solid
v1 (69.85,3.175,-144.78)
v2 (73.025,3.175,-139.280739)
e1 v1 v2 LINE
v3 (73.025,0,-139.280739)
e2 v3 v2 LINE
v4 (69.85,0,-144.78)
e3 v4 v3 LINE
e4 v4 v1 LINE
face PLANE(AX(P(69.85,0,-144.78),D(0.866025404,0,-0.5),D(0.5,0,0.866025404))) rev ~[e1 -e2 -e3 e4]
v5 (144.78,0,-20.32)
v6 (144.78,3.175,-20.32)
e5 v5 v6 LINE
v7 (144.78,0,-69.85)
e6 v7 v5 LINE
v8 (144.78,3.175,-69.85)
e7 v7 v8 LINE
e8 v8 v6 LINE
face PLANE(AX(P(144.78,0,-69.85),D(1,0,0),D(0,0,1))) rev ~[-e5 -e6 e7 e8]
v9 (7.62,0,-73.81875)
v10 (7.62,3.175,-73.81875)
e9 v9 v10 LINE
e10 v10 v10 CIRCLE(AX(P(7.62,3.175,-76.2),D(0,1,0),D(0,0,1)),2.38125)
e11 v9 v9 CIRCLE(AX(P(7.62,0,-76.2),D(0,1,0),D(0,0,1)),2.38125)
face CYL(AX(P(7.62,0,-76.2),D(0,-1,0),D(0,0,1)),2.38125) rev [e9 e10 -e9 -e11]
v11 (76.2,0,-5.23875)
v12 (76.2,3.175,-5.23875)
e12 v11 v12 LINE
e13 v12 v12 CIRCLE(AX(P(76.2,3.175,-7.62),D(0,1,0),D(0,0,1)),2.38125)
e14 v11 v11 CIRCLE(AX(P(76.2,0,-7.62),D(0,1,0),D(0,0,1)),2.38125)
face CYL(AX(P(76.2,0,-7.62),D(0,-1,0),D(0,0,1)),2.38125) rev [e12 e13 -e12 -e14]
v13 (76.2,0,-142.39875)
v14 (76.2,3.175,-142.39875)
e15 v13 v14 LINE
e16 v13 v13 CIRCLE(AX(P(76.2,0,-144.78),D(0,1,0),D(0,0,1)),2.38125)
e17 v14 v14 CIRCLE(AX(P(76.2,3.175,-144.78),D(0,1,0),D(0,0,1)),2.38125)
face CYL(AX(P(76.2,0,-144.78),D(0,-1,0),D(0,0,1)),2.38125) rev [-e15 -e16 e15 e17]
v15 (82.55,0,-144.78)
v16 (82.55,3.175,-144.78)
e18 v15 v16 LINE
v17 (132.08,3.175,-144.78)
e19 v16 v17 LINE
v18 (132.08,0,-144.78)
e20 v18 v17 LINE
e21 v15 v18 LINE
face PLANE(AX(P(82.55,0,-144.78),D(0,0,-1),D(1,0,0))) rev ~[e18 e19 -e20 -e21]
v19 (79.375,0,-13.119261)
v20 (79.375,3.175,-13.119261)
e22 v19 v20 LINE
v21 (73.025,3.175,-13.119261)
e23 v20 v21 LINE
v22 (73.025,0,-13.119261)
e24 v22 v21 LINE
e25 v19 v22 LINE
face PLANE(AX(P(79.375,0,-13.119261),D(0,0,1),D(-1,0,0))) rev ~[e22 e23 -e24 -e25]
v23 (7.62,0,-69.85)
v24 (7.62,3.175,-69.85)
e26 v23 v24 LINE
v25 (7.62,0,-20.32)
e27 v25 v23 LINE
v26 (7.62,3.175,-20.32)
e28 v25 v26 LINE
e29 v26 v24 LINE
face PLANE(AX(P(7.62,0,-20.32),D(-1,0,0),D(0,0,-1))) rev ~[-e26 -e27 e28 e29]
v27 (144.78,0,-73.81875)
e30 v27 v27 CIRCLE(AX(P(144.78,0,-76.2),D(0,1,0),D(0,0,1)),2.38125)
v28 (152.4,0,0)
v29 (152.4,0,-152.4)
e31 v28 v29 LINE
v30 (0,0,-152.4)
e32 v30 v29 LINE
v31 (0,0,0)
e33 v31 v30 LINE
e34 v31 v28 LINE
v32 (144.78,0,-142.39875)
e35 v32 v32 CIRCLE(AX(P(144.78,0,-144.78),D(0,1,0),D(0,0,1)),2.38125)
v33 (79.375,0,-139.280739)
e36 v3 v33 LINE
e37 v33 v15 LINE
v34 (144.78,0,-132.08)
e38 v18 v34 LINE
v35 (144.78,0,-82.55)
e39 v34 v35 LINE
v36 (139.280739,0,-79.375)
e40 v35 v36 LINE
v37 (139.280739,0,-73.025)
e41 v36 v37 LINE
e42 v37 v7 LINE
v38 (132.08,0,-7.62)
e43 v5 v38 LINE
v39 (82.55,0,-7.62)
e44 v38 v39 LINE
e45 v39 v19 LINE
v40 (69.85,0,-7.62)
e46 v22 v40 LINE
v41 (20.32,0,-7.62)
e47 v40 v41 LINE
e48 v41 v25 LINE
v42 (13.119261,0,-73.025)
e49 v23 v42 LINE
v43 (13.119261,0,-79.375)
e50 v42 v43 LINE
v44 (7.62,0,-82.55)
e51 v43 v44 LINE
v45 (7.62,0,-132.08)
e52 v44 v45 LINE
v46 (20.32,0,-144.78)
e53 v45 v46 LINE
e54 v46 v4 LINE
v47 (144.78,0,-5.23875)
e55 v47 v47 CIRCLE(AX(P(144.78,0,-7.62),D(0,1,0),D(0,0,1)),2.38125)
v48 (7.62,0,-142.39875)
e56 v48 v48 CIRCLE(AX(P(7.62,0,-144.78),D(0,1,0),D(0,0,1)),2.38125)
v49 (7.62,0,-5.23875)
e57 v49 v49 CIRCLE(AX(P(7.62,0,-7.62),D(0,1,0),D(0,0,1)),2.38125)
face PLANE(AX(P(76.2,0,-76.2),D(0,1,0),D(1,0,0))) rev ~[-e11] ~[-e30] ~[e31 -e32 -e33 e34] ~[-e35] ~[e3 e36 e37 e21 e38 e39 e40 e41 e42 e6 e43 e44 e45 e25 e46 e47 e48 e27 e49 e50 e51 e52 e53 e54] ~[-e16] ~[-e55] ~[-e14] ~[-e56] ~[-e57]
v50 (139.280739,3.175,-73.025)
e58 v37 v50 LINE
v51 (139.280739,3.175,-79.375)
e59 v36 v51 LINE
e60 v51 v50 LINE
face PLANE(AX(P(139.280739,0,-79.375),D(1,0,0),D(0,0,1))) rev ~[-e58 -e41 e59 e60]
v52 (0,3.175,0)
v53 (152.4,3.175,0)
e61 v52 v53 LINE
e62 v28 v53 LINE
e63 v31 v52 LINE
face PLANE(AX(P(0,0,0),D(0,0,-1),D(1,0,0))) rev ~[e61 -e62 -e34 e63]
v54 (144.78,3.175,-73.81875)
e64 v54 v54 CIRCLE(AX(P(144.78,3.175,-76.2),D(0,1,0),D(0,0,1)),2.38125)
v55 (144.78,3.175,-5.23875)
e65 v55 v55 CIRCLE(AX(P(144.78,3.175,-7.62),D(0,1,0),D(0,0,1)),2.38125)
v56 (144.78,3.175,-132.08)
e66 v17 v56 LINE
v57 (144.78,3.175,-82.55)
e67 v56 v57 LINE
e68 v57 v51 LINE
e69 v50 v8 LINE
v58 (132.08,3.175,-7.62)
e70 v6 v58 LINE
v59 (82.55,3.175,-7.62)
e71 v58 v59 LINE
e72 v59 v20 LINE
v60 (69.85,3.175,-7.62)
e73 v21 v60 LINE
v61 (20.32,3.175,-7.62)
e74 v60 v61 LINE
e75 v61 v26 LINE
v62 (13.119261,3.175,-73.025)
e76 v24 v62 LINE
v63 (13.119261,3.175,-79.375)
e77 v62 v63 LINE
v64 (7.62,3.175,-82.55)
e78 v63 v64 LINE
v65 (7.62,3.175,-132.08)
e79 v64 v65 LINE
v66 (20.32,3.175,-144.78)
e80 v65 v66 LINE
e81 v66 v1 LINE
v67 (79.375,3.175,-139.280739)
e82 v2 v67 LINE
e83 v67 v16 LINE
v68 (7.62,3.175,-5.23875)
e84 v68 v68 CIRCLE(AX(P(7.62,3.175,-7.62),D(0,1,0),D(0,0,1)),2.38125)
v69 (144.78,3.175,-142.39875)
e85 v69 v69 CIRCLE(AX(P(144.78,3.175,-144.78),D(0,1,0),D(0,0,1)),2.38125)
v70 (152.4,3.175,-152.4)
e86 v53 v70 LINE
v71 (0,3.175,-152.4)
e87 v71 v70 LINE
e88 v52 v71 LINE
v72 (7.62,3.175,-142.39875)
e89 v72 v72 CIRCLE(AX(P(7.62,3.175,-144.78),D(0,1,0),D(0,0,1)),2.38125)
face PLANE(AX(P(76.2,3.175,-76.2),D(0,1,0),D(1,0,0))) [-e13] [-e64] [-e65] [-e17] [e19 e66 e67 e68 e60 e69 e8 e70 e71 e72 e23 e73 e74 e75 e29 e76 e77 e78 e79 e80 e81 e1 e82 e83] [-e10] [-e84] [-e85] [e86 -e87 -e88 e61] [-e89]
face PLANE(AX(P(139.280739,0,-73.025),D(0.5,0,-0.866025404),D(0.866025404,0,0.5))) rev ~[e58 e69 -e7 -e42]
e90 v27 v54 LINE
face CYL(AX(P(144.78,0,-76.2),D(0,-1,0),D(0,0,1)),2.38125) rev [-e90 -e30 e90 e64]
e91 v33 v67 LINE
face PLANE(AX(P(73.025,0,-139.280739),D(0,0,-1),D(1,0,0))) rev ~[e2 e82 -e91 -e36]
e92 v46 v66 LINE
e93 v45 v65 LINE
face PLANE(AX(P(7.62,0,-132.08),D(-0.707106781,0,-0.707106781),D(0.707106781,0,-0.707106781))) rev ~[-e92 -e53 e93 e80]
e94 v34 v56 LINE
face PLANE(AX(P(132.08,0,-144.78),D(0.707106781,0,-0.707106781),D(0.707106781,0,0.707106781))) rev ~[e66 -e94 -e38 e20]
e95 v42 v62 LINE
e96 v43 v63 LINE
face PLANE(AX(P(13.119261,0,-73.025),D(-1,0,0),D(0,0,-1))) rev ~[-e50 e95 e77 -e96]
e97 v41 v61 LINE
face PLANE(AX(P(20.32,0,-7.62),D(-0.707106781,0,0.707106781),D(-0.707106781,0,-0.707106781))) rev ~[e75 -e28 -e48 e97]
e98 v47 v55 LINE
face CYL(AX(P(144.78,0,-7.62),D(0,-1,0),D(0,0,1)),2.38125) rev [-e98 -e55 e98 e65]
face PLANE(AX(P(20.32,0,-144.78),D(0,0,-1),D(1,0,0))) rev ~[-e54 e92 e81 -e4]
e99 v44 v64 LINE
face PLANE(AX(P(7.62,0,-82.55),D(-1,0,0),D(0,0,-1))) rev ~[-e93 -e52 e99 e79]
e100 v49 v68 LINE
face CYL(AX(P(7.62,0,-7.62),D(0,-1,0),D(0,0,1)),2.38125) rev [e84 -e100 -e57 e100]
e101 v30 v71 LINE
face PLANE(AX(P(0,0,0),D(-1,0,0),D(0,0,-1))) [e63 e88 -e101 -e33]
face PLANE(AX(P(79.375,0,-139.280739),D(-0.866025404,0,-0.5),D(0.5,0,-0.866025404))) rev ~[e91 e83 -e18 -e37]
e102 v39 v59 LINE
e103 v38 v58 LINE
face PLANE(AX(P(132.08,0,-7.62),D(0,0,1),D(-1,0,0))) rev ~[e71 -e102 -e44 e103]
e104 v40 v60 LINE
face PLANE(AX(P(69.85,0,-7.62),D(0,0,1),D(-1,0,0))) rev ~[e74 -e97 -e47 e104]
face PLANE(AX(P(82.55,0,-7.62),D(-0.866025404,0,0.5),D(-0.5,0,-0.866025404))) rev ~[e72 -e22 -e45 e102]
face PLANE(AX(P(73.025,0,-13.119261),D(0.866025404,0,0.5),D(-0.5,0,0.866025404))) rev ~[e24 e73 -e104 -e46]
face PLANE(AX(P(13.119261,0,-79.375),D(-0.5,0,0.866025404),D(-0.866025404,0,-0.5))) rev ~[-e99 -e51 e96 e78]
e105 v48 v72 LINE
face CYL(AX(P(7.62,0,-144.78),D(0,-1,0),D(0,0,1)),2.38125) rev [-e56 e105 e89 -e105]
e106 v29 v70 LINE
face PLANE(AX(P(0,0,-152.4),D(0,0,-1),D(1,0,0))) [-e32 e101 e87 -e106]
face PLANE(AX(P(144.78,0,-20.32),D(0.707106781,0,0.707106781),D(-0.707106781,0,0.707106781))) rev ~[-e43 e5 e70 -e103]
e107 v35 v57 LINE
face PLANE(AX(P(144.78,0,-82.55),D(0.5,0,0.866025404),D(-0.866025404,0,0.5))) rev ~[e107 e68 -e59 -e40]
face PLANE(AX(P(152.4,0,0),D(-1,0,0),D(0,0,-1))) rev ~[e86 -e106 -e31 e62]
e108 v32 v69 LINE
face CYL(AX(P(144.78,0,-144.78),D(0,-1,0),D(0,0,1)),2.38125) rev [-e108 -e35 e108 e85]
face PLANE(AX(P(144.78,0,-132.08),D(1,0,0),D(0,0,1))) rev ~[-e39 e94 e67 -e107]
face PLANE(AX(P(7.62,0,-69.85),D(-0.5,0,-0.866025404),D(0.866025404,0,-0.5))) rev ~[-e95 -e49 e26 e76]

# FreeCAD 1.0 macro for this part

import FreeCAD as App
import Part
import Sketcher
from FreeCAD import Vector
Q = App.Units.Quantity

doc = App.newDocument("Part")
body = doc.addObject("PartDesign::Body", "Body")

# Sketch on XZ plane
sketch1 = doc.addObject("Sketcher::SketchObject", "Sketch")
body.addObject(sketch1)
sketch1.AttachmentSupport = (doc.XZ_Plane, [""])
sketch1.MapMode = "FlatFace"
sketch1.addGeometry(Part.LineSegment(Vector(0, -152.4, 0), Vector(0, 0, 0)), False)
sketch1.addGeometry(Part.LineSegment(Vector(0, 0, 0), Vector(152.4, 0, 0)), False)
sketch1.addGeometry(Part.LineSegment(Vector(152.4, 0, 0), Vector(152.4, -152.4, 0)), False)
sketch1.addGeometry(Part.LineSegment(Vector(152.4, -152.4, 0), Vector(0, -152.4, 0)), False)
sketch1.addGeometry(Part.Circle(Vector(7.6, -7.6, 0), Vector(0, 0, 1), 2.4), False)
sketch1.addGeometry(Part.Circle(Vector(76.2, -7.6, 0), Vector(0, 0, 1), 2.4), False)
sketch1.addGeometry(Part.Circle(Vector(144.8, -7.6, 0), Vector(0, 0, 1), 2.4), False)
sketch1.addGeometry(Part.Circle(Vector(7.6, -76.2, 0), Vector(0, 0, 1), 2.4), False)
sketch1.addGeometry(Part.Circle(Vector(7.6, -144.8, 0), Vector(0, 0, 1), 2.4), False)
sketch1.addGeometry(Part.LineSegment(Vector(73, -13.1, 0), Vector(69.8, -7.6, 0)), False)
sketch1.addGeometry(Part.LineSegment(Vector(69.8, -7.6, 0), Vector(20.3, -7.6, 0)), False)
sketch1.addGeometry(Part.LineSegment(Vector(20.3, -7.6, 0), Vector(7.6, -20.3, 0)), False)
sketch1.addGeometry(Part.LineSegment(Vector(7.6, -20.3, 0), Vector(7.6, -69.8, 0)), False)
sketch1.addGeometry(Part.LineSegment(Vector(7.6, -69.8, 0), Vector(13.1, -73, 0)), False)
sketch1.addGeometry(Part.LineSegment(Vector(13.1, -73, 0), Vector(13.1, -79.4, 0)), False)
sketch1.addGeometry(Part.LineSegment(Vector(13.1, -79.4, 0), Vector(7.6, -82.5, 0)), False)
sketch1.addGeometry(Part.LineSegment(Vector(7.6, -82.5, 0), Vector(7.6, -132.1, 0)), False)
sketch1.addGeometry(Part.LineSegment(Vector(7.6, -132.1, 0), Vector(20.3, -144.8, 0)), False)
sketch1.addGeometry(Part.LineSegment(Vector(20.3, -144.8, 0), Vector(69.8, -144.8, 0)), False)
sketch1.addGeometry(Part.LineSegment(Vector(69.8, -144.8, 0), Vector(73, -139.3, 0)), False)
sketch1.addGeometry(Part.LineSegment(Vector(73, -139.3, 0), Vector(79.4, -139.3, 0)), False)
sketch1.addGeometry(Part.LineSegment(Vector(79.4, -139.3, 0), Vector(82.5, -144.8, 0)), False)
sketch1.addGeometry(Part.LineSegment(Vector(82.5, -144.8, 0), Vector(132.1, -144.8, 0)), False)
sketch1.addGeometry(Part.LineSegment(Vector(132.1, -144.8, 0), Vector(144.8, -132.1, 0)), False)
sketch1.addGeometry(Part.LineSegment(Vector(144.8, -132.1, 0), Vector(144.8, -82.5, 0)), False)
sketch1.addGeometry(Part.LineSegment(Vector(144.8, -82.5, 0), Vector(139.3, -79.4, 0)), False)
sketch1.addGeometry(Part.LineSegment(Vector(139.3, -79.4, 0), Vector(139.3, -73, 0)), False)
sketch1.addGeometry(Part.LineSegment(Vector(139.3, -73, 0), Vector(144.8, -69.8, 0)), False)
sketch1.addGeometry(Part.LineSegment(Vector(144.8, -69.8, 0), Vector(144.8, -20.3, 0)), False)
sketch1.addGeometry(Part.LineSegment(Vector(144.8, -20.3, 0), Vector(132.1, -7.6, 0)), False)
sketch1.addGeometry(Part.LineSegment(Vector(132.1, -7.6, 0), Vector(82.5, -7.6, 0)), False)
sketch1.addGeometry(Part.LineSegment(Vector(82.5, -7.6, 0), Vector(79.4, -13.1, 0)), False)
sketch1.addGeometry(Part.LineSegment(Vector(79.4, -13.1, 0), Vector(73, -13.1, 0)), False)
sketch1.addGeometry(Part.Circle(Vector(144.8, -76.2, 0), Vector(0, 0, 1), 2.4), False)
sketch1.addGeometry(Part.Circle(Vector(76.2, -144.8, 0), Vector(0, 0, 1), 2.4), False)
sketch1.addGeometry(Part.Circle(Vector(144.8, -144.8, 0), Vector(0, 0, 1), 2.4), False)
sketch1.addConstraint(Sketcher.Constraint("Coincident", 0, 2, 1, 1))
sketch1.addConstraint(Sketcher.Constraint("Coincident", 1, 2, 2, 1))
sketch1.addConstraint(Sketcher.Constraint("Coincident", 2, 2, 3, 1))
sketch1.addConstraint(Sketcher.Constraint("Coincident", 3, 2, 0, 1))
sketch1.addConstraint(Sketcher.Constraint("Coincident", 9, 2, 10, 1))
sketch1.addConstraint(Sketcher.Constraint("Coincident", 10, 2, 11, 1))
sketch1.addConstraint(Sketcher.Constraint("Coincident", 11, 2, 12, 1))
sketch1.addConstraint(Sketcher.Constraint("Coincident", 12, 2, 13, 1))
sketch1.addConstraint(Sketcher.Constraint("Coincident", 13, 2, 14, 1))
sketch1.addConstraint(Sketcher.Constraint("Coincident", 14, 2, 15, 1))
sketch1.addConstraint(Sketcher.Constraint("Coincident", 15, 2, 16, 1))
sketch1.addConstraint(Sketcher.Constraint("Coincident", 16, 2, 17, 1))
sketch1.addConstraint(Sketcher.Constraint("Coincident", 17, 2, 18, 1))
sketch1.addConstraint(Sketcher.Constraint("Coincident", 18, 2, 19, 1))
sketch1.addConstraint(Sketcher.Constraint("Coincident", 19, 2, 20, 1))
sketch1.addConstraint(Sketcher.Constraint("Coincident", 20, 2, 21, 1))
sketch1.addConstraint(Sketcher.Constraint("Coincident", 21, 2, 22, 1))
sketch1.addConstraint(Sketcher.Constraint("Coincident", 22, 2, 23, 1))
sketch1.addConstraint(Sketcher.Constraint("Coincident", 23, 2, 24, 1))
sketch1.addConstraint(Sketcher.Constraint("Coincident", 24, 2, 25, 1))
sketch1.addConstraint(Sketcher.Constraint("Coincident", 25, 2, 26, 1))
sketch1.addConstraint(Sketcher.Constraint("Coincident", 26, 2, 27, 1))
sketch1.addConstraint(Sketcher.Constraint("Coincident", 27, 2, 28, 1))
sketch1.addConstraint(Sketcher.Constraint("Coincident", 28, 2, 29, 1))
sketch1.addConstraint(Sketcher.Constraint("Coincident", 29, 2, 30, 1))
sketch1.addConstraint(Sketcher.Constraint("Coincident", 30, 2, 31, 1))
sketch1.addConstraint(Sketcher.Constraint("Coincident", 31, 2, 32, 1))
sketch1.addConstraint(Sketcher.Constraint("Coincident", 32, 2, 9, 1))
sketch1.addConstraint(Sketcher.Constraint("Vertical", 0))
sketch1.addConstraint(Sketcher.Constraint("Horizontal", 1))
sketch1.addConstraint(Sketcher.Constraint("Vertical", 2))
sketch1.addConstraint(Sketcher.Constraint("Horizontal", 3))
sketch1.addConstraint(Sketcher.Constraint("Horizontal", 10))
sketch1.addConstraint(Sketcher.Constraint("Vertical", 12))
sketch1.addConstraint(Sketcher.Constraint("Vertical", 14))
sketch1.addConstraint(Sketcher.Constraint("Vertical", 16))
sketch1.addConstraint(Sketcher.Constraint("Horizontal", 18))
sketch1.addConstraint(Sketcher.Constraint("Horizontal", 20))
sketch1.addConstraint(Sketcher.Constraint("Horizontal", 22))
sketch1.addConstraint(Sketcher.Constraint("Vertical", 24))
sketch1.addConstraint(Sketcher.Constraint("Vertical", 26))
sketch1.addConstraint(Sketcher.Constraint("Vertical", 28))
sketch1.addConstraint(Sketcher.Constraint("Horizontal", 30))
sketch1.addConstraint(Sketcher.Constraint("Horizontal", 32))
sketch1.addConstraint(Sketcher.Constraint("Coincident", 0, 2, -1, 1))
sketch1.addConstraint(Sketcher.Constraint("Equal", 4, 5))
sketch1.addConstraint(Sketcher.Constraint("Equal", 5, 6))
sketch1.addConstraint(Sketcher.Constraint("Equal", 6, 7))
sketch1.addConstraint(Sketcher.Constraint("Equal", 7, 8))
sketch1.addConstraint(Sketcher.Constraint("Equal", 8, 33))
sketch1.addConstraint(Sketcher.Constraint("Equal", 33, 34))
sketch1.addConstraint(Sketcher.Constraint("Equal", 34, 35))
sketch1.addConstraint(Sketcher.Constraint("Perpendicular", 9, 15))
sketch1.addConstraint(Sketcher.Constraint("Perpendicular", 11, 17))
sketch1.addConstraint(Sketcher.Constraint("Perpendicular", 13, 19))
sketch1.addConstraint(Sketcher.Constraint("Perpendicular", 15, 21))
sketch1.addConstraint(Sketcher.Constraint("Perpendicular", 17, 23))
sketch1.addConstraint(Sketcher.Constraint("Perpendicular", 19, 25))
sketch1.addConstraint(Sketcher.Constraint("Perpendicular", 21, 27))
sketch1.addConstraint(Sketcher.Constraint("Perpendicular", 23, 29))
sketch1.addConstraint(Sketcher.Constraint("Perpendicular", 25, 31))
sketch1.addConstraint(Sketcher.Constraint("Horizontal", 4, 3, 5, 3))
sketch1.addConstraint(Sketcher.Constraint("Horizontal", 5, 3, 6, 3))
sketch1.addConstraint(Sketcher.Constraint("Horizontal", 7, 3, 33, 3))
sketch1.addConstraint(Sketcher.Constraint("Horizontal", 8, 3, 34, 3))
sketch1.addConstraint(Sketcher.Constraint("Horizontal", 34, 3, 35, 3))
sketch1.addConstraint(Sketcher.Constraint("Horizontal", 6, 3, 9, 2))
sketch1.addConstraint(Sketcher.Constraint("Horizontal", 35, 3, 17, 2))
sketch1.addConstraint(Sketcher.Constraint("Horizontal", 18, 2, 21, 2))
sketch1.addConstraint(Sketcher.Constraint("Horizontal", 16, 2, 23, 2))
sketch1.addConstraint(Sketcher.Constraint("Horizontal", 15, 2, 24, 2))
sketch1.addConstraint(Sketcher.Constraint("Horizontal", 14, 2, 25, 2))
sketch1.addConstraint(Sketcher.Constraint("Horizontal", 13, 2, 26, 2))
sketch1.addConstraint(Sketcher.Constraint("Horizontal", 12, 2, 27, 2))
sketch1.addConstraint(Sketcher.Constraint("Horizontal", 11, 2, 28, 2))
sketch1.addConstraint(Sketcher.Constraint("Horizontal", 10, 2, 29, 2))
sketch1.addConstraint(Sketcher.Constraint("Vertical", 4, 3, 7, 3))
sketch1.addConstraint(Sketcher.Constraint("Vertical", 7, 3, 8, 3))
sketch1.addConstraint(Sketcher.Constraint("Vertical", 6, 3, 33, 3))
sketch1.addConstraint(Sketcher.Constraint("Vertical", 5, 3, 34, 3))
sketch1.addConstraint(Sketcher.Constraint("Vertical", 33, 3, 35, 3))
sketch1.addConstraint(Sketcher.Constraint("Vertical", 8, 3, 11, 2))
sketch1.addConstraint(Sketcher.Constraint("Vertical", 12, 2, 15, 2))
sketch1.addConstraint(Sketcher.Constraint("Vertical", 10, 2, 17, 2))
sketch1.addConstraint(Sketcher.Constraint("Vertical", 9, 2, 18, 2))
sketch1.addConstraint(Sketcher.Constraint("Vertical", 35, 3, 23, 2))
sketch1.addConstraint(Sketcher.Constraint("Vertical", 24, 2, 27, 2))
sketch1.addConstraint(Sketcher.Constraint("Vertical", 22, 2, 29, 2))
sketch1.addConstraint(Sketcher.Constraint("Vertical", 21, 2, 30, 2))
sketch1.addConstraint(Sketcher.Constraint("Vertical", 20, 2, 31, 2))
sketch1.addConstraint(Sketcher.Constraint("Equal", 18, 22))
sketch1.addConstraint(Sketcher.Constraint("Equal", 3, 0))
sketch1.addConstraint(Sketcher.Constraint("Equal", 30, 12))
sketch1.addConstraint(Sketcher.Constraint("Equal", 32, 14))
sketch1.addConstraint(Sketcher.Constraint("Equal", 12, 16))
sketch1.addConstraint(Sketcher.Constraint("Equal", 9, 13))
sketch1.addConstraint(Sketcher.Constraint("DistanceX", 1, 1, 1, 2, Q("6 in")))
sketch1.addConstraint(Sketcher.Constraint("Diameter", 4, Q("0.1875 in")))
sketch1.addConstraint(Sketcher.Constraint("DistanceX", -1, 1, 5, 3, Q("3 in")))
sketch1.addConstraint(Sketcher.Constraint("DistanceY", 7, 3, -1, 1, Q("3 in")))
sketch1.addConstraint(Sketcher.Constraint("Angle", 9, Q("120 deg")))
sketch1.addConstraint(Sketcher.Constraint("DistanceX", 10, 2, 10, 1, Q("1.95 in")))
sketch1.addConstraint(Sketcher.Constraint("DistanceX", 20, 1, 20, 2, Q("0.25 in")))
sketch1.addConstraint(Sketcher.Constraint("DistanceX", -1, 1, 4, 3, Q("0.3 in")))
sketch1.addConstraint(Sketcher.Constraint("DistanceY", 4, 3, -1, 1, Q("0.3 in")))
sketch1.addConstraint(Sketcher.Constraint("DistanceX", -1, 1, 6, 3, Q("5.7 in")))
sketch1.addConstraint(Sketcher.Constraint("DistanceX", -1, 1, 10, 2, Q("0.8 in")))
pad1 = doc.addObject("PartDesign::Pad", "Pad")
body.addObject(pad1)
pad1.Profile = sketch1
pad1.Length = Q("0.125 in")
pad1.Reversed = True

doc.recompute()
